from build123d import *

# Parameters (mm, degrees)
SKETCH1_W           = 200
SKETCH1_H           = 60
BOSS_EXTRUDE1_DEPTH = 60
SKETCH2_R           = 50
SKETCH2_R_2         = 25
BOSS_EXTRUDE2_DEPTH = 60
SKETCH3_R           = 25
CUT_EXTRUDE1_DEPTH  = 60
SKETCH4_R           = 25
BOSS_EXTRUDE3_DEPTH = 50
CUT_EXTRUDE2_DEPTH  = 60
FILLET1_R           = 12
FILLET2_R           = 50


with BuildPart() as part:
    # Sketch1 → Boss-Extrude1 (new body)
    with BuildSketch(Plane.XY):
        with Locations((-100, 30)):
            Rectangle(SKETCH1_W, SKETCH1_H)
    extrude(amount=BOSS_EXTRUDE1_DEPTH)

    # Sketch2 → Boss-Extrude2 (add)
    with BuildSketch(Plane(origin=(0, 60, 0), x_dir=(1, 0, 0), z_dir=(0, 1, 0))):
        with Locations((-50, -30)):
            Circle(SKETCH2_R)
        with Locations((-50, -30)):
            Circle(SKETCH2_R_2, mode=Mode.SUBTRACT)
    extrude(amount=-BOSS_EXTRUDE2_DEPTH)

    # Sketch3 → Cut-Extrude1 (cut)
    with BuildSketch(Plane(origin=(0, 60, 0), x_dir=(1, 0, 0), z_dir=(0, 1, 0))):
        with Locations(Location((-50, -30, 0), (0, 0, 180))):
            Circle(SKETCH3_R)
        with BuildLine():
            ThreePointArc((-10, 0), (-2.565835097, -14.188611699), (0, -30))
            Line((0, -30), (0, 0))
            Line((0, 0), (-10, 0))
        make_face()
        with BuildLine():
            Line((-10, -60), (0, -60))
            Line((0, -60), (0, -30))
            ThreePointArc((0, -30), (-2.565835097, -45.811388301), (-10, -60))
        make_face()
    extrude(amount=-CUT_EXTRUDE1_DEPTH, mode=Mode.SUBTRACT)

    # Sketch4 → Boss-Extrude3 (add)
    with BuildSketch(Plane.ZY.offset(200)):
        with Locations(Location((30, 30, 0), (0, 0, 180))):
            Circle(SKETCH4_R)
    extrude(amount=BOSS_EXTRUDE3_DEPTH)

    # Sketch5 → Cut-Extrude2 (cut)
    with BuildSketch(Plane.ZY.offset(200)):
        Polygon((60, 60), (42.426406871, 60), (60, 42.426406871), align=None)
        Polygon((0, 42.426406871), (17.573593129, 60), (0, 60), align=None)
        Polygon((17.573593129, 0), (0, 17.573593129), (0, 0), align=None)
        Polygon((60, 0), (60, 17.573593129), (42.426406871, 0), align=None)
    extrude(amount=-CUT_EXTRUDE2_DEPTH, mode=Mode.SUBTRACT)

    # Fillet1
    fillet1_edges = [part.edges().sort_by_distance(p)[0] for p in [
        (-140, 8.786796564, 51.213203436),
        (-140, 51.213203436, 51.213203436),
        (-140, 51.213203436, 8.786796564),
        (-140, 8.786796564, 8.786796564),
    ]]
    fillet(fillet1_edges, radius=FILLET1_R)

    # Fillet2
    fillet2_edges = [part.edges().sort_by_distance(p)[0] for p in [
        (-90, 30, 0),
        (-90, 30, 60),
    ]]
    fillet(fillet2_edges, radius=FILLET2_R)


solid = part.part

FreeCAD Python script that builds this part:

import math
import FreeCAD as App
import Part
import Sketcher
from FreeCAD import Vector


def edges_at(feature, points):
    """Names of the edges that pass closest to the given points."""
    edges = feature.Shape.Edges
    near = lambda p: min(range(len(edges)), key=lambda i: edges[i].distToShape(Part.Vertex(*p))[0])
    return sorted({f"Edge{near(p) + 1}" for p in points})

doc = App.newDocument("Part")
body = doc.addObject("PartDesign::Body", "Body")

# Sketch on XY plane
sketch1 = body.newObject("Sketcher::SketchObject", "Sketch")
sketch1.AttachmentSupport = (doc.getObject("XY_Plane"), [""])
sketch1.MapMode = "FlatFace"
sketch1.addGeometry(Part.LineSegment(Vector(-200, 60, 0), Vector(-200, 0, 0)), False)
sketch1.addGeometry(Part.LineSegment(Vector(-200, 0, 0), Vector(0, 0, 0)), False)
sketch1.addGeometry(Part.LineSegment(Vector(0, 0, 0), Vector(0, 60, 0)), False)
sketch1.addGeometry(Part.LineSegment(Vector(0, 60, 0), Vector(-200, 60, 0)), False)
sketch1.addConstraint(Sketcher.Constraint("Coincident", 0, 2, 1, 1))
sketch1.addConstraint(Sketcher.Constraint("Coincident", 1, 2, 2, 1))
sketch1.addConstraint(Sketcher.Constraint("Coincident", 2, 2, 3, 1))
sketch1.addConstraint(Sketcher.Constraint("Coincident", 3, 2, 0, 1))
sketch1.addConstraint(Sketcher.Constraint("Vertical", 0))
sketch1.addConstraint(Sketcher.Constraint("Horizontal", 1))
sketch1.addConstraint(Sketcher.Constraint("Vertical", 2))
sketch1.addConstraint(Sketcher.Constraint("Horizontal", 3))
sketch1.addConstraint(Sketcher.Constraint("Coincident", 1, 2, -1, 1))
sketch1.addConstraint(Sketcher.Constraint("DistanceX", 1, 1, 1, 2, 200.0))
sketch1.addConstraint(Sketcher.Constraint("DistanceY", 0, 2, 0, 1, 60.0))
pad1 = body.newObject("PartDesign::Pad", "Pad")
pad1.Profile = sketch1
pad1.Length = 60

# Sketch on XZ plane
sketch2 = body.newObject("Sketcher::SketchObject", "Sketch001")
sketch2.AttachmentSupport = (doc.getObject("XZ_Plane"), [""])
sketch2.MapMode = "FlatFace"
sketch2.AttachmentOffset = App.Placement(Vector(0, 0, -60), App.Rotation())
sketch2.addGeometry(Part.Circle(Vector(-50, 30, 0), Vector(0, 0, 1), 50), False)
sketch2.addGeometry(Part.Circle(Vector(-50, 30, 0), Vector(0, 0, 1), 25), False)
sketch2.addConstraint(Sketcher.Constraint("Coincident", 1, 3, 0, 3))
sketch2.addConstraint(Sketcher.Constraint("Diameter", 0, 100.0))
sketch2.addConstraint(Sketcher.Constraint("Diameter", 1, 50.0))
sketch2.addConstraint(Sketcher.Constraint("DistanceX", 0, 3, -1, 1, 50.0))
sketch2.addConstraint(Sketcher.Constraint("DistanceY", -1, 1, 0, 3, 30.0))
pad2 = body.newObject("PartDesign::Pad", "Pad001")
pad2.Profile = sketch2
pad2.Length = 60

# Sketch on XZ plane
sketch3 = body.newObject("Sketcher::SketchObject", "Sketch002")
sketch3.AttachmentSupport = (doc.getObject("XZ_Plane"), [""])
sketch3.MapMode = "FlatFace"
sketch3.AttachmentOffset = App.Placement(Vector(0, 0, -60), App.Rotation())
sketch3.addGeometry(Part.Circle(Vector(-50, 30, 0), Vector(0, 0, 1), 25), False)
sketch3.addGeometry(Part.ArcOfCircle(Part.Circle(Vector(-50, 30, 0), Vector(0, 0, 1), 50), math.radians(-37), math.radians(0)), False)
sketch3.addGeometry(Part.LineSegment(Vector(0, 30, 0), Vector(0, 0, 0)), False)
sketch3.addGeometry(Part.LineSegment(Vector(0, 0, 0), Vector(-10, 0, 0)), False)
sketch3.addGeometry(Part.LineSegment(Vector(-10, 60, 0), Vector(0, 60, 0)), False)
sketch3.addGeometry(Part.LineSegment(Vector(0, 60, 0), Vector(0, 30, 0)), False)
sketch3.addGeometry(Part.ArcOfCircle(Part.Circle(Vector(-50, 30, 0), Vector(0, 0, 1), 50), math.radians(0), math.radians(37)), False)
sketch3.addConstraint(Sketcher.Constraint("Tangent", 1, 2, 2, 1))
sketch3.addConstraint(Sketcher.Constraint("Coincident", 2, 2, 3, 1))
sketch3.addConstraint(Sketcher.Constraint("Coincident", 3, 2, 1, 1))
sketch3.addConstraint(Sketcher.Constraint("Coincident", 4, 2, 5, 1))
sketch3.addConstraint(Sketcher.Constraint("Tangent", 5, 2, 6, 1))
sketch3.addConstraint(Sketcher.Constraint("Coincident", 6, 2, 4, 1))
sketch3.addConstraint(Sketcher.Constraint("Vertical", 2))
sketch3.addConstraint(Sketcher.Constraint("Horizontal", 3))
sketch3.addConstraint(Sketcher.Constraint("Horizontal", 4))
sketch3.addConstraint(Sketcher.Constraint("Vertical", 5))
sketch3.addConstraint(Sketcher.Constraint("Coincident", 2, 2, -1, 1))
sketch3.addConstraint(Sketcher.Constraint("Coincident", 1, 3, 0, 3))
sketch3.addConstraint(Sketcher.Constraint("Coincident", 6, 3, 0, 3))
sketch3.addConstraint(Sketcher.Constraint("Equal", 1, 6))
sketch3.addConstraint(Sketcher.Constraint("Vertical", 3, 2, 6, 2))
sketch3.addConstraint(Sketcher.Constraint("Diameter", 0, 50.0))
sketch3.addConstraint(Sketcher.Constraint("Radius", 1, 50.0))
sketch3.addConstraint(Sketcher.Constraint("DistanceX", 3, 2, 3, 1, 10.0))
pocket1 = body.newObject("PartDesign::Pocket", "Pocket")
pocket1.Profile = sketch3
pocket1.Length = 60
pocket1.Reversed = True

# Sketch on YZ plane
sketch4 = body.newObject("Sketcher::SketchObject", "Sketch003")
sketch4.AttachmentSupport = (doc.getObject("YZ_Plane"), [""])
sketch4.MapMode = "FlatFace"
sketch4.AttachmentOffset = App.Placement(Vector(0, 0, -200), App.Rotation())
sketch4.addGeometry(Part.Circle(Vector(30, 30, 0), Vector(0, 0, 1), 25), False)
sketch4.addConstraint(Sketcher.Constraint("Diameter", 0, 50.0))
sketch4.addConstraint(Sketcher.Constraint("DistanceX", -1, 1, 0, 3, 30.0))
sketch4.addConstraint(Sketcher.Constraint("DistanceY", -1, 1, 0, 3, 30.0))
pad3 = body.newObject("PartDesign::Pad", "Pad002")
pad3.Profile = sketch4
pad3.Length = 50
pad3.Reversed = True

# Sketch on YZ plane
sketch5 = body.newObject("Sketcher::SketchObject", "Sketch004")
sketch5.AttachmentSupport = (doc.getObject("YZ_Plane"), [""])
sketch5.MapMode = "FlatFace"
sketch5.AttachmentOffset = App.Placement(Vector(0, 0, -200), App.Rotation())
sketch5.addGeometry(Part.LineSegment(Vector(60, 60, 0), Vector(60, 42, 0)), False)
sketch5.addGeometry(Part.LineSegment(Vector(60, 42, 0), Vector(42, 60, 0)), False)
sketch5.addGeometry(Part.LineSegment(Vector(42, 60, 0), Vector(60, 60, 0)), False)
sketch5.addGeometry(Part.LineSegment(Vector(42, 0, 0), Vector(60, 18, 0)), False)
sketch5.addGeometry(Part.LineSegment(Vector(60, 18, 0), Vector(60, 0, 0)), False)
sketch5.addGeometry(Part.LineSegment(Vector(60, 0, 0), Vector(42, 0, 0)), False)
sketch5.addGeometry(Part.LineSegment(Vector(0, 18, 0), Vector(18, 0, 0)), False)
sketch5.addGeometry(Part.LineSegment(Vector(18, 0, 0), Vector(0, 0, 0)), False)
sketch5.addGeometry(Part.LineSegment(Vector(0, 0, 0), Vector(0, 18, 0)), False)
sketch5.addGeometry(Part.LineSegment(Vector(0, 60, 0), Vector(18, 60, 0)), False)
sketch5.addGeometry(Part.LineSegment(Vector(18, 60, 0), Vector(0, 42, 0)), False)
sketch5.addGeometry(Part.LineSegment(Vector(0, 42, 0), Vector(0, 60, 0)), False)
sketch5.addConstraint(Sketcher.Constraint("Coincident", 0, 2, 1, 1))
sketch5.addConstraint(Sketcher.Constraint("Coincident", 1, 2, 2, 1))
sketch5.addConstraint(Sketcher.Constraint("Coincident", 2, 2, 0, 1))
sketch5.addConstraint(Sketcher.Constraint("Coincident", 3, 2, 4, 1))
sketch5.addConstraint(Sketcher.Constraint("Coincident", 4, 2, 5, 1))
sketch5.addConstraint(Sketcher.Constraint("Coincident", 5, 2, 3, 1))
sketch5.addConstraint(Sketcher.Constraint("Coincident", 6, 2, 7, 1))
sketch5.addConstraint(Sketcher.Constraint("Coincident", 7, 2, 8, 1))
sketch5.addConstraint(Sketcher.Constraint("Coincident", 8, 2, 6, 1))
sketch5.addConstraint(Sketcher.Constraint("Coincident", 9, 2, 10, 1))
sketch5.addConstraint(Sketcher.Constraint("Coincident", 10, 2, 11, 1))
sketch5.addConstraint(Sketcher.Constraint("Coincident", 11, 2, 9, 1))
sketch5.addConstraint(Sketcher.Constraint("Vertical", 0))
sketch5.addConstraint(Sketcher.Constraint("Horizontal", 2))
sketch5.addConstraint(Sketcher.Constraint("Vertical", 4))
sketch5.addConstraint(Sketcher.Constraint("Horizontal", 5))
sketch5.addConstraint(Sketcher.Constraint("Horizontal", 7))
sketch5.addConstraint(Sketcher.Constraint("Vertical", 8))
sketch5.addConstraint(Sketcher.Constraint("Horizontal", 9))
sketch5.addConstraint(Sketcher.Constraint("Vertical", 11))
sketch5.addConstraint(Sketcher.Constraint("Coincident", 7, 2, -1, 1))
sketch5.addConstraint(Sketcher.Constraint("PointOnObject", 4, 2, -1))
sketch5.addConstraint(Sketcher.Constraint("PointOnObject", 10, 2, -2))
sketch5.addConstraint(Sketcher.Constraint("Perpendicular", 1, 3))
sketch5.addConstraint(Sketcher.Constraint("Perpendicular", 3, 6))
sketch5.addConstraint(Sketcher.Constraint("Perpendicular", 6, 10))
sketch5.addConstraint(Sketcher.Constraint("Horizontal", 3, 2, 8, 2))
sketch5.addConstraint(Sketcher.Constraint("Horizontal", 2, 2, 9, 2))
sketch5.addConstraint(Sketcher.Constraint("Horizontal", 0, 2, 10, 2))
sketch5.addConstraint(Sketcher.Constraint("Vertical", 2, 2, 3, 2))
sketch5.addConstraint(Sketcher.Constraint("Vertical", 1, 2, 5, 2))
sketch5.addConstraint(Sketcher.Constraint("Vertical", 6, 2, 9, 2))
sketch5.addConstraint(Sketcher.Constraint("DistanceX", -1, 1, 0, 2, 60.0))
sketch5.addConstraint(Sketcher.Constraint("DistanceY", -1, 1, 1, 2, 60.0))
sketch5.addConstraint(Sketcher.Constraint("DistanceX", 2, 1, 2, 2, 17.573593))
pocket2 = body.newObject("PartDesign::Pocket", "Pocket001")
pocket2.Profile = sketch5
pocket2.Length = 60
pocket2.Reversed = True
doc.recompute()

fillet = body.newObject("PartDesign::Fillet", "Fillet")
fillet.Base = (pocket2, edges_at(pocket2, [
    (-140, 8.787, 51.213),
    (-140, 51.213, 51.213),
    (-140, 51.213, 8.787),
    (-140, 8.787, 8.787),
]))
fillet.Radius = 12
doc.recompute()

fillet2 = body.newObject("PartDesign::Fillet", "Fillet001")
fillet2.Base = (fillet, edges_at(fillet, [(-90, 30, 0), (-90, 30, 60)]))
fillet2.Radius = 50

doc.recompute()
